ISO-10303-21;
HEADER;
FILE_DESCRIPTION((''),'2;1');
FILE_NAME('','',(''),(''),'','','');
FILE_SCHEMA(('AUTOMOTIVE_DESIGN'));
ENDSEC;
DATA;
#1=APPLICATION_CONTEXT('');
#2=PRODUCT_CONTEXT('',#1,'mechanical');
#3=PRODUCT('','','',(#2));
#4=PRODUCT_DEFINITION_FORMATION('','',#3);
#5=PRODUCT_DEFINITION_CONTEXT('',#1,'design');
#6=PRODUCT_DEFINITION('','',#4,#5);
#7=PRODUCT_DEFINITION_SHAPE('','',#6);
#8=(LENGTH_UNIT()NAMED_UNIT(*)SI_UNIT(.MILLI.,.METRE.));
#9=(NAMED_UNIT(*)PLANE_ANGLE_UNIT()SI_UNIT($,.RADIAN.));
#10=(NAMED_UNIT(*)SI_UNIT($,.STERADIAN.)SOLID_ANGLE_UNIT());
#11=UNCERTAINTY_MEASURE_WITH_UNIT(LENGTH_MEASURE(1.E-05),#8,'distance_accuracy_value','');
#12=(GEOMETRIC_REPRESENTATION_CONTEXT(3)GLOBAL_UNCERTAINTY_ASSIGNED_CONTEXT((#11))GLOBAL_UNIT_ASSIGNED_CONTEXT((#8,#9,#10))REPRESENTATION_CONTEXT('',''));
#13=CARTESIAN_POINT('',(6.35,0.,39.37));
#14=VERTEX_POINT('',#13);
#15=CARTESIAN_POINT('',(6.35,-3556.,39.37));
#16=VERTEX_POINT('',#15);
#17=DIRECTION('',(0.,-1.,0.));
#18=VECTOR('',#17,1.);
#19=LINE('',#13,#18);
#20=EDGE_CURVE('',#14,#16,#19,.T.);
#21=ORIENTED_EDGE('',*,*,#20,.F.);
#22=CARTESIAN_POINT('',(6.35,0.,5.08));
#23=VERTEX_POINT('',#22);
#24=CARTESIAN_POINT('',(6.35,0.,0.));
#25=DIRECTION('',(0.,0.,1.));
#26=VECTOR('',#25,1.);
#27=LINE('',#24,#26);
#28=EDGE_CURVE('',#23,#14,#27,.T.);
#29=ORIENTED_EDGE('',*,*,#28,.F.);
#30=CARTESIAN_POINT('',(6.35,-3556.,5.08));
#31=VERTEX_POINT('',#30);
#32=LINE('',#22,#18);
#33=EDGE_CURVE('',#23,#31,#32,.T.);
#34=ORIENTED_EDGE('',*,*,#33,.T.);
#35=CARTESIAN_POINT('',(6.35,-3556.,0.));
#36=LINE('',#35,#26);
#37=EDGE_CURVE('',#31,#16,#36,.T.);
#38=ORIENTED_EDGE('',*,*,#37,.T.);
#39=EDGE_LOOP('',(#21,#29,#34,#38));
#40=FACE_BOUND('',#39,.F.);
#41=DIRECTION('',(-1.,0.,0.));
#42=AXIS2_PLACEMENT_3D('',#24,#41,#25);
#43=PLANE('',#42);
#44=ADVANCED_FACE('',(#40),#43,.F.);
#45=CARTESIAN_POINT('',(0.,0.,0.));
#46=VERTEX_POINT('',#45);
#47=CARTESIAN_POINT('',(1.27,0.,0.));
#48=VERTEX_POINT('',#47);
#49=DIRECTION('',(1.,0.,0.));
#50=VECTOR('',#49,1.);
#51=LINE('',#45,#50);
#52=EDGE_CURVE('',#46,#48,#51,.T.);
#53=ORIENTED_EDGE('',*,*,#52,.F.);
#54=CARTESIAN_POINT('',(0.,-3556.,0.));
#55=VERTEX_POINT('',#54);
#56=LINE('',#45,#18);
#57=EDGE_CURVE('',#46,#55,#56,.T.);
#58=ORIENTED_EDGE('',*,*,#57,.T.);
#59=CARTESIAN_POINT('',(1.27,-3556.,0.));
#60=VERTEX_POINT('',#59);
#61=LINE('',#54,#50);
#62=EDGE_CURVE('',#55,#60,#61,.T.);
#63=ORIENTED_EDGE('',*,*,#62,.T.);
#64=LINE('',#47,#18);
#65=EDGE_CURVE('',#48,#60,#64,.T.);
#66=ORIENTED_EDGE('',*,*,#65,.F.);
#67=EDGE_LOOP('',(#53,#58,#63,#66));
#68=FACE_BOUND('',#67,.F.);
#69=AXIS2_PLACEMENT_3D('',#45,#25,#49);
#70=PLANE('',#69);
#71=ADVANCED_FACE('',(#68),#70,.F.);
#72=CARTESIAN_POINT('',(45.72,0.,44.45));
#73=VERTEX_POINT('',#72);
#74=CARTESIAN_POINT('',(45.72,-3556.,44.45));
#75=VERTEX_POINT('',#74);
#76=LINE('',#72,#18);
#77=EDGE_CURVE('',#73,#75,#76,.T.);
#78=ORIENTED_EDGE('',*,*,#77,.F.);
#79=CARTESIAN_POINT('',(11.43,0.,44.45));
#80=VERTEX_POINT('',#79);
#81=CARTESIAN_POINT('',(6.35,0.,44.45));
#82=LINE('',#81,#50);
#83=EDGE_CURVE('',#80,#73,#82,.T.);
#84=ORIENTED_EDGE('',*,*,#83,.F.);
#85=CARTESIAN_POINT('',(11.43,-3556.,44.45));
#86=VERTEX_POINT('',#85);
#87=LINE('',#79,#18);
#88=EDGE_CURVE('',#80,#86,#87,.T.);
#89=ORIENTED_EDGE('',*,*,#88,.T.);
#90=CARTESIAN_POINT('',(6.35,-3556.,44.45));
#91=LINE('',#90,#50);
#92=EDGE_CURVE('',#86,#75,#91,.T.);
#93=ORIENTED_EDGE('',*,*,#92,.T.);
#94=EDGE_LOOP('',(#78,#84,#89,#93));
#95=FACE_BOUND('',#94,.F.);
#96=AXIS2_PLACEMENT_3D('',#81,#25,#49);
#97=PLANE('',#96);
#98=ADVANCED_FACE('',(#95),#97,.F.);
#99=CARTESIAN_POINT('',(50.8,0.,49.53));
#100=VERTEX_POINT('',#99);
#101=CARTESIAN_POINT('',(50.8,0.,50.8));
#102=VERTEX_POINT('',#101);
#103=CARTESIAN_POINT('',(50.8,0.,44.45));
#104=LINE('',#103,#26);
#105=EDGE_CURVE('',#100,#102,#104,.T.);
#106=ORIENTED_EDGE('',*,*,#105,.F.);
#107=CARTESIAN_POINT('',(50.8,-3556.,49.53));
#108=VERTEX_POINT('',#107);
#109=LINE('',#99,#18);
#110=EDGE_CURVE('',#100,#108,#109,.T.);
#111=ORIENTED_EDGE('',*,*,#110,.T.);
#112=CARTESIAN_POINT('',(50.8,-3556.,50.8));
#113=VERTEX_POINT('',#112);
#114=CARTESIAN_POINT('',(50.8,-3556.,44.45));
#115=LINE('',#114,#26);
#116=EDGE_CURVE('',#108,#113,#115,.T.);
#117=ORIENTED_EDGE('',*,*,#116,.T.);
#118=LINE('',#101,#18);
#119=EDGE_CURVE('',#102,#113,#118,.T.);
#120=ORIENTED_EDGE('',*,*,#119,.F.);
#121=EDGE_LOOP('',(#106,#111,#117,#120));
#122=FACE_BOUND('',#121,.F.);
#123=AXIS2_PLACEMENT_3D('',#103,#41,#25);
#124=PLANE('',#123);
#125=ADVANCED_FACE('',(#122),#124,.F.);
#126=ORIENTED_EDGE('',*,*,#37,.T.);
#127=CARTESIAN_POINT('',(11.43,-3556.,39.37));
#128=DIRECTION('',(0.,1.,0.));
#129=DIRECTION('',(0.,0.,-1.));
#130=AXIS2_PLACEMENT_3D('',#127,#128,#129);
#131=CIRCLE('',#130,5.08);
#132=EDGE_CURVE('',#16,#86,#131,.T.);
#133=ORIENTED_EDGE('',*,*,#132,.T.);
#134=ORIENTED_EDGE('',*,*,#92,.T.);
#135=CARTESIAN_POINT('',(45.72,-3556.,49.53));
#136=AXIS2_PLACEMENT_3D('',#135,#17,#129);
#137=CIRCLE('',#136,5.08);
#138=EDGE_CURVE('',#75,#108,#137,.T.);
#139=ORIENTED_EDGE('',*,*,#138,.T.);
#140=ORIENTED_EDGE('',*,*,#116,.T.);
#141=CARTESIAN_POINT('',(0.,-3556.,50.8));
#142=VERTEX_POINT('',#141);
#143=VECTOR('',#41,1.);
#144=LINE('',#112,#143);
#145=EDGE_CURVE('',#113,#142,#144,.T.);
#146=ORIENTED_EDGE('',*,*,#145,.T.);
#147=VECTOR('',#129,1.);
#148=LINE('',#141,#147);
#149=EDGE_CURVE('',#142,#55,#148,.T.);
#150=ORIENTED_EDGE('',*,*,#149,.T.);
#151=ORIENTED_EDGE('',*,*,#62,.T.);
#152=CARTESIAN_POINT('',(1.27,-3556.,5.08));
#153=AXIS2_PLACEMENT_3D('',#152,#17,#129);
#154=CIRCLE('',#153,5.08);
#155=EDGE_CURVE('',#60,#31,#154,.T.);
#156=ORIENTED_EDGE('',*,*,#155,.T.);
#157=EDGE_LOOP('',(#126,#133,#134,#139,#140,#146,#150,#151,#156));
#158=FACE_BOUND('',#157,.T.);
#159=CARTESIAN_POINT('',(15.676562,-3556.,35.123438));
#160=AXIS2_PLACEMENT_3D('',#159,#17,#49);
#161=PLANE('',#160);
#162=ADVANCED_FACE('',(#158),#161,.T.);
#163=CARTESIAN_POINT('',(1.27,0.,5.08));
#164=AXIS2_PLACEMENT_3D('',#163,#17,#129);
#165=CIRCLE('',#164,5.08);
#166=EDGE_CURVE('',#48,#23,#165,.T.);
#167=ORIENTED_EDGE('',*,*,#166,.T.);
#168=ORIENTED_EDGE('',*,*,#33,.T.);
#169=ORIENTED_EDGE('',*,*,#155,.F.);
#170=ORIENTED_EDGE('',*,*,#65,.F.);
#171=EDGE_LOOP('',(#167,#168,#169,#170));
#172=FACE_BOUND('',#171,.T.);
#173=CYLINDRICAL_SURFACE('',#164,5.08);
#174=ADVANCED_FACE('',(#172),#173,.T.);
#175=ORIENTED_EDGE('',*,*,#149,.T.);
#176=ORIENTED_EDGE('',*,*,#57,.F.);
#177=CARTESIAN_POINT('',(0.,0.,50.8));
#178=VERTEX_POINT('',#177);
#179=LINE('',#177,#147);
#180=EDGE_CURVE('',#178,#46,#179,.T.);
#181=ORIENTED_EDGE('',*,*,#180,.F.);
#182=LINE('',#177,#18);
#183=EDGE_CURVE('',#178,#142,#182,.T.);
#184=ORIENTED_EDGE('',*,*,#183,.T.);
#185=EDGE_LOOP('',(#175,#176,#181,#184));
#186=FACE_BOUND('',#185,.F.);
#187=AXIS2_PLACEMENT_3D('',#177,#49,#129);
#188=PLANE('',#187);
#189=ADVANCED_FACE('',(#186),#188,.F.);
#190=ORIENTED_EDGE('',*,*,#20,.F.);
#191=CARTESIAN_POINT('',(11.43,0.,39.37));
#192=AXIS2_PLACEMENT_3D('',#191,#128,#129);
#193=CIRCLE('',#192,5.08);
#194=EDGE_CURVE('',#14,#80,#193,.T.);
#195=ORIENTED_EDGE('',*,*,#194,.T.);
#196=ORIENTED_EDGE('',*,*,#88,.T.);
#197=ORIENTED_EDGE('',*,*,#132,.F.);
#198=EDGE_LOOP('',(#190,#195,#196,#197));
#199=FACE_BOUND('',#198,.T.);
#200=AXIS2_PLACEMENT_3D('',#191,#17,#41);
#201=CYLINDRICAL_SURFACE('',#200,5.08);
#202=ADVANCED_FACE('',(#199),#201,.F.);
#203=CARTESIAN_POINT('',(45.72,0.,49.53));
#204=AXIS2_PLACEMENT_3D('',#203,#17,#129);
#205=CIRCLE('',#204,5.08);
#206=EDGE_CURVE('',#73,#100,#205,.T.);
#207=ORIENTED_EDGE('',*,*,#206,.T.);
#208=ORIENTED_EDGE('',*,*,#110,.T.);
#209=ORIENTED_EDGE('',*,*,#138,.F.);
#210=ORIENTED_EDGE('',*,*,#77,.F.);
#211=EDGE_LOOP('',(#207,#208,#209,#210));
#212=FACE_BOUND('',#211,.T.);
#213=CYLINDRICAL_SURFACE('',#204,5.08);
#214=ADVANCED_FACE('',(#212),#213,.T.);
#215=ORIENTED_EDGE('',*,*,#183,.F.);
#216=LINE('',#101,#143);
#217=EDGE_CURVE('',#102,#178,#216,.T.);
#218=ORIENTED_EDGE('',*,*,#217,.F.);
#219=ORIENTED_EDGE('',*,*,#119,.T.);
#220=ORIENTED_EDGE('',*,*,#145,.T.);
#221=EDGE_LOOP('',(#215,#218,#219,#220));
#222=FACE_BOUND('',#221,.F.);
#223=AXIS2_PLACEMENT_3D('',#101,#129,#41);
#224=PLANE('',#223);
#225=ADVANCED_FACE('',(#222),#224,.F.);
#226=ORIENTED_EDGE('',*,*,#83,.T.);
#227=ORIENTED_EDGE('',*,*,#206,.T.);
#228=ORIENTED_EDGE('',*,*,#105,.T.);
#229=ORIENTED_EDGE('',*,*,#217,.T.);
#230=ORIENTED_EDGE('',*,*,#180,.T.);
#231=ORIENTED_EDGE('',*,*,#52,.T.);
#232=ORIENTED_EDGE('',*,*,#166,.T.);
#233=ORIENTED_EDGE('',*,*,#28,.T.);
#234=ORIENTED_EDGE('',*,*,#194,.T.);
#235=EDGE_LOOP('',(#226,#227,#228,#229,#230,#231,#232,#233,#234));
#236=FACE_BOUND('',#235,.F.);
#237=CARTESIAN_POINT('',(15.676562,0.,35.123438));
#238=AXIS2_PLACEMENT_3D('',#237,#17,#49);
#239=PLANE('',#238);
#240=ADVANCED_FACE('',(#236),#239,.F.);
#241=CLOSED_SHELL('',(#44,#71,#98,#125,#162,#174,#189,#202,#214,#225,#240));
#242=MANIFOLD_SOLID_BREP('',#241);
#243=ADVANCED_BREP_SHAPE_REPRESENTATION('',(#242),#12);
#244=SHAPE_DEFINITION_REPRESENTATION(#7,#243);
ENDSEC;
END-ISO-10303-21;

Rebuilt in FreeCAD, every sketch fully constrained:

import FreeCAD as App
import Part
import Sketcher
Q = App.Units.Quantity


def edges_at(feature, points):
    """Names of the edges that pass closest to the given points."""
    edges = feature.Shape.Edges
    near = lambda p: min(range(len(edges)), key=lambda i: edges[i].distToShape(Part.Vertex(*p))[0])
    return sorted({f"Edge{near(p) + 1}" for p in points})


def add_polygon(sketch, points):
    """Adds a closed chain of lines whose ends are joined by coincident constraints."""
    first, n = sketch.GeometryCount, len(points)
    for a, b in zip(points, points[1:] + points[:1]):
        sketch.addGeometry(Part.LineSegment(App.Vector(*a, 0), App.Vector(*b, 0)), False)
    for i in range(n):
        sketch.addConstraint(Sketcher.Constraint("Coincident", first + i, 2, first + (i + 1) % n, 1))

doc = App.newDocument("Part")
body = doc.addObject("PartDesign::Body", "Body")

# Sketch on XZ plane
sketch1 = doc.addObject("Sketcher::SketchObject", "Sketch")
body.addObject(sketch1)
sketch1.AttachmentSupport = (doc.XZ_Plane, [""])
sketch1.MapMode = "FlatFace"
add_polygon(sketch1, [(0, 51), (0, 0), (6, 0), (6, 44), (51, 44), (51, 51)])  # lines 0-5
sketch1.addConstraint([
    Sketcher.Constraint("Vertical", 0),
    Sketcher.Constraint("Horizontal", 1),
    Sketcher.Constraint("Vertical", 2),
    Sketcher.Constraint("Horizontal", 3),
    Sketcher.Constraint("Vertical", 4),
    Sketcher.Constraint("Horizontal", 5),
    Sketcher.Constraint("Coincident", 0, 2, -1, 1),
    Sketcher.Constraint("Equal", 5, 0),
    Sketcher.Constraint("Equal", 3, 2),
    Sketcher.Constraint("DistanceX", 5, 2, 5, 1, Q("2 in")),
    Sketcher.Constraint("DistanceX", 1, 1, 1, 2, Q("0.25 in")),
])
pad1 = doc.addObject("PartDesign::Pad", "Pad")
body.addObject(pad1)
pad1.Profile = sketch1
pad1.Length = Q("140 in")
doc.recompute()

fillet = doc.addObject("PartDesign::Fillet", "Fillet")
body.addObject(fillet)
fillet.Base = (pad1, edges_at(pad1, [(6.35, -1778, 0), (50.8, -1778, 44.45), (6.35, -1778, 44.45)]))
fillet.Radius = Q("0.2 in")

doc.recompute()
